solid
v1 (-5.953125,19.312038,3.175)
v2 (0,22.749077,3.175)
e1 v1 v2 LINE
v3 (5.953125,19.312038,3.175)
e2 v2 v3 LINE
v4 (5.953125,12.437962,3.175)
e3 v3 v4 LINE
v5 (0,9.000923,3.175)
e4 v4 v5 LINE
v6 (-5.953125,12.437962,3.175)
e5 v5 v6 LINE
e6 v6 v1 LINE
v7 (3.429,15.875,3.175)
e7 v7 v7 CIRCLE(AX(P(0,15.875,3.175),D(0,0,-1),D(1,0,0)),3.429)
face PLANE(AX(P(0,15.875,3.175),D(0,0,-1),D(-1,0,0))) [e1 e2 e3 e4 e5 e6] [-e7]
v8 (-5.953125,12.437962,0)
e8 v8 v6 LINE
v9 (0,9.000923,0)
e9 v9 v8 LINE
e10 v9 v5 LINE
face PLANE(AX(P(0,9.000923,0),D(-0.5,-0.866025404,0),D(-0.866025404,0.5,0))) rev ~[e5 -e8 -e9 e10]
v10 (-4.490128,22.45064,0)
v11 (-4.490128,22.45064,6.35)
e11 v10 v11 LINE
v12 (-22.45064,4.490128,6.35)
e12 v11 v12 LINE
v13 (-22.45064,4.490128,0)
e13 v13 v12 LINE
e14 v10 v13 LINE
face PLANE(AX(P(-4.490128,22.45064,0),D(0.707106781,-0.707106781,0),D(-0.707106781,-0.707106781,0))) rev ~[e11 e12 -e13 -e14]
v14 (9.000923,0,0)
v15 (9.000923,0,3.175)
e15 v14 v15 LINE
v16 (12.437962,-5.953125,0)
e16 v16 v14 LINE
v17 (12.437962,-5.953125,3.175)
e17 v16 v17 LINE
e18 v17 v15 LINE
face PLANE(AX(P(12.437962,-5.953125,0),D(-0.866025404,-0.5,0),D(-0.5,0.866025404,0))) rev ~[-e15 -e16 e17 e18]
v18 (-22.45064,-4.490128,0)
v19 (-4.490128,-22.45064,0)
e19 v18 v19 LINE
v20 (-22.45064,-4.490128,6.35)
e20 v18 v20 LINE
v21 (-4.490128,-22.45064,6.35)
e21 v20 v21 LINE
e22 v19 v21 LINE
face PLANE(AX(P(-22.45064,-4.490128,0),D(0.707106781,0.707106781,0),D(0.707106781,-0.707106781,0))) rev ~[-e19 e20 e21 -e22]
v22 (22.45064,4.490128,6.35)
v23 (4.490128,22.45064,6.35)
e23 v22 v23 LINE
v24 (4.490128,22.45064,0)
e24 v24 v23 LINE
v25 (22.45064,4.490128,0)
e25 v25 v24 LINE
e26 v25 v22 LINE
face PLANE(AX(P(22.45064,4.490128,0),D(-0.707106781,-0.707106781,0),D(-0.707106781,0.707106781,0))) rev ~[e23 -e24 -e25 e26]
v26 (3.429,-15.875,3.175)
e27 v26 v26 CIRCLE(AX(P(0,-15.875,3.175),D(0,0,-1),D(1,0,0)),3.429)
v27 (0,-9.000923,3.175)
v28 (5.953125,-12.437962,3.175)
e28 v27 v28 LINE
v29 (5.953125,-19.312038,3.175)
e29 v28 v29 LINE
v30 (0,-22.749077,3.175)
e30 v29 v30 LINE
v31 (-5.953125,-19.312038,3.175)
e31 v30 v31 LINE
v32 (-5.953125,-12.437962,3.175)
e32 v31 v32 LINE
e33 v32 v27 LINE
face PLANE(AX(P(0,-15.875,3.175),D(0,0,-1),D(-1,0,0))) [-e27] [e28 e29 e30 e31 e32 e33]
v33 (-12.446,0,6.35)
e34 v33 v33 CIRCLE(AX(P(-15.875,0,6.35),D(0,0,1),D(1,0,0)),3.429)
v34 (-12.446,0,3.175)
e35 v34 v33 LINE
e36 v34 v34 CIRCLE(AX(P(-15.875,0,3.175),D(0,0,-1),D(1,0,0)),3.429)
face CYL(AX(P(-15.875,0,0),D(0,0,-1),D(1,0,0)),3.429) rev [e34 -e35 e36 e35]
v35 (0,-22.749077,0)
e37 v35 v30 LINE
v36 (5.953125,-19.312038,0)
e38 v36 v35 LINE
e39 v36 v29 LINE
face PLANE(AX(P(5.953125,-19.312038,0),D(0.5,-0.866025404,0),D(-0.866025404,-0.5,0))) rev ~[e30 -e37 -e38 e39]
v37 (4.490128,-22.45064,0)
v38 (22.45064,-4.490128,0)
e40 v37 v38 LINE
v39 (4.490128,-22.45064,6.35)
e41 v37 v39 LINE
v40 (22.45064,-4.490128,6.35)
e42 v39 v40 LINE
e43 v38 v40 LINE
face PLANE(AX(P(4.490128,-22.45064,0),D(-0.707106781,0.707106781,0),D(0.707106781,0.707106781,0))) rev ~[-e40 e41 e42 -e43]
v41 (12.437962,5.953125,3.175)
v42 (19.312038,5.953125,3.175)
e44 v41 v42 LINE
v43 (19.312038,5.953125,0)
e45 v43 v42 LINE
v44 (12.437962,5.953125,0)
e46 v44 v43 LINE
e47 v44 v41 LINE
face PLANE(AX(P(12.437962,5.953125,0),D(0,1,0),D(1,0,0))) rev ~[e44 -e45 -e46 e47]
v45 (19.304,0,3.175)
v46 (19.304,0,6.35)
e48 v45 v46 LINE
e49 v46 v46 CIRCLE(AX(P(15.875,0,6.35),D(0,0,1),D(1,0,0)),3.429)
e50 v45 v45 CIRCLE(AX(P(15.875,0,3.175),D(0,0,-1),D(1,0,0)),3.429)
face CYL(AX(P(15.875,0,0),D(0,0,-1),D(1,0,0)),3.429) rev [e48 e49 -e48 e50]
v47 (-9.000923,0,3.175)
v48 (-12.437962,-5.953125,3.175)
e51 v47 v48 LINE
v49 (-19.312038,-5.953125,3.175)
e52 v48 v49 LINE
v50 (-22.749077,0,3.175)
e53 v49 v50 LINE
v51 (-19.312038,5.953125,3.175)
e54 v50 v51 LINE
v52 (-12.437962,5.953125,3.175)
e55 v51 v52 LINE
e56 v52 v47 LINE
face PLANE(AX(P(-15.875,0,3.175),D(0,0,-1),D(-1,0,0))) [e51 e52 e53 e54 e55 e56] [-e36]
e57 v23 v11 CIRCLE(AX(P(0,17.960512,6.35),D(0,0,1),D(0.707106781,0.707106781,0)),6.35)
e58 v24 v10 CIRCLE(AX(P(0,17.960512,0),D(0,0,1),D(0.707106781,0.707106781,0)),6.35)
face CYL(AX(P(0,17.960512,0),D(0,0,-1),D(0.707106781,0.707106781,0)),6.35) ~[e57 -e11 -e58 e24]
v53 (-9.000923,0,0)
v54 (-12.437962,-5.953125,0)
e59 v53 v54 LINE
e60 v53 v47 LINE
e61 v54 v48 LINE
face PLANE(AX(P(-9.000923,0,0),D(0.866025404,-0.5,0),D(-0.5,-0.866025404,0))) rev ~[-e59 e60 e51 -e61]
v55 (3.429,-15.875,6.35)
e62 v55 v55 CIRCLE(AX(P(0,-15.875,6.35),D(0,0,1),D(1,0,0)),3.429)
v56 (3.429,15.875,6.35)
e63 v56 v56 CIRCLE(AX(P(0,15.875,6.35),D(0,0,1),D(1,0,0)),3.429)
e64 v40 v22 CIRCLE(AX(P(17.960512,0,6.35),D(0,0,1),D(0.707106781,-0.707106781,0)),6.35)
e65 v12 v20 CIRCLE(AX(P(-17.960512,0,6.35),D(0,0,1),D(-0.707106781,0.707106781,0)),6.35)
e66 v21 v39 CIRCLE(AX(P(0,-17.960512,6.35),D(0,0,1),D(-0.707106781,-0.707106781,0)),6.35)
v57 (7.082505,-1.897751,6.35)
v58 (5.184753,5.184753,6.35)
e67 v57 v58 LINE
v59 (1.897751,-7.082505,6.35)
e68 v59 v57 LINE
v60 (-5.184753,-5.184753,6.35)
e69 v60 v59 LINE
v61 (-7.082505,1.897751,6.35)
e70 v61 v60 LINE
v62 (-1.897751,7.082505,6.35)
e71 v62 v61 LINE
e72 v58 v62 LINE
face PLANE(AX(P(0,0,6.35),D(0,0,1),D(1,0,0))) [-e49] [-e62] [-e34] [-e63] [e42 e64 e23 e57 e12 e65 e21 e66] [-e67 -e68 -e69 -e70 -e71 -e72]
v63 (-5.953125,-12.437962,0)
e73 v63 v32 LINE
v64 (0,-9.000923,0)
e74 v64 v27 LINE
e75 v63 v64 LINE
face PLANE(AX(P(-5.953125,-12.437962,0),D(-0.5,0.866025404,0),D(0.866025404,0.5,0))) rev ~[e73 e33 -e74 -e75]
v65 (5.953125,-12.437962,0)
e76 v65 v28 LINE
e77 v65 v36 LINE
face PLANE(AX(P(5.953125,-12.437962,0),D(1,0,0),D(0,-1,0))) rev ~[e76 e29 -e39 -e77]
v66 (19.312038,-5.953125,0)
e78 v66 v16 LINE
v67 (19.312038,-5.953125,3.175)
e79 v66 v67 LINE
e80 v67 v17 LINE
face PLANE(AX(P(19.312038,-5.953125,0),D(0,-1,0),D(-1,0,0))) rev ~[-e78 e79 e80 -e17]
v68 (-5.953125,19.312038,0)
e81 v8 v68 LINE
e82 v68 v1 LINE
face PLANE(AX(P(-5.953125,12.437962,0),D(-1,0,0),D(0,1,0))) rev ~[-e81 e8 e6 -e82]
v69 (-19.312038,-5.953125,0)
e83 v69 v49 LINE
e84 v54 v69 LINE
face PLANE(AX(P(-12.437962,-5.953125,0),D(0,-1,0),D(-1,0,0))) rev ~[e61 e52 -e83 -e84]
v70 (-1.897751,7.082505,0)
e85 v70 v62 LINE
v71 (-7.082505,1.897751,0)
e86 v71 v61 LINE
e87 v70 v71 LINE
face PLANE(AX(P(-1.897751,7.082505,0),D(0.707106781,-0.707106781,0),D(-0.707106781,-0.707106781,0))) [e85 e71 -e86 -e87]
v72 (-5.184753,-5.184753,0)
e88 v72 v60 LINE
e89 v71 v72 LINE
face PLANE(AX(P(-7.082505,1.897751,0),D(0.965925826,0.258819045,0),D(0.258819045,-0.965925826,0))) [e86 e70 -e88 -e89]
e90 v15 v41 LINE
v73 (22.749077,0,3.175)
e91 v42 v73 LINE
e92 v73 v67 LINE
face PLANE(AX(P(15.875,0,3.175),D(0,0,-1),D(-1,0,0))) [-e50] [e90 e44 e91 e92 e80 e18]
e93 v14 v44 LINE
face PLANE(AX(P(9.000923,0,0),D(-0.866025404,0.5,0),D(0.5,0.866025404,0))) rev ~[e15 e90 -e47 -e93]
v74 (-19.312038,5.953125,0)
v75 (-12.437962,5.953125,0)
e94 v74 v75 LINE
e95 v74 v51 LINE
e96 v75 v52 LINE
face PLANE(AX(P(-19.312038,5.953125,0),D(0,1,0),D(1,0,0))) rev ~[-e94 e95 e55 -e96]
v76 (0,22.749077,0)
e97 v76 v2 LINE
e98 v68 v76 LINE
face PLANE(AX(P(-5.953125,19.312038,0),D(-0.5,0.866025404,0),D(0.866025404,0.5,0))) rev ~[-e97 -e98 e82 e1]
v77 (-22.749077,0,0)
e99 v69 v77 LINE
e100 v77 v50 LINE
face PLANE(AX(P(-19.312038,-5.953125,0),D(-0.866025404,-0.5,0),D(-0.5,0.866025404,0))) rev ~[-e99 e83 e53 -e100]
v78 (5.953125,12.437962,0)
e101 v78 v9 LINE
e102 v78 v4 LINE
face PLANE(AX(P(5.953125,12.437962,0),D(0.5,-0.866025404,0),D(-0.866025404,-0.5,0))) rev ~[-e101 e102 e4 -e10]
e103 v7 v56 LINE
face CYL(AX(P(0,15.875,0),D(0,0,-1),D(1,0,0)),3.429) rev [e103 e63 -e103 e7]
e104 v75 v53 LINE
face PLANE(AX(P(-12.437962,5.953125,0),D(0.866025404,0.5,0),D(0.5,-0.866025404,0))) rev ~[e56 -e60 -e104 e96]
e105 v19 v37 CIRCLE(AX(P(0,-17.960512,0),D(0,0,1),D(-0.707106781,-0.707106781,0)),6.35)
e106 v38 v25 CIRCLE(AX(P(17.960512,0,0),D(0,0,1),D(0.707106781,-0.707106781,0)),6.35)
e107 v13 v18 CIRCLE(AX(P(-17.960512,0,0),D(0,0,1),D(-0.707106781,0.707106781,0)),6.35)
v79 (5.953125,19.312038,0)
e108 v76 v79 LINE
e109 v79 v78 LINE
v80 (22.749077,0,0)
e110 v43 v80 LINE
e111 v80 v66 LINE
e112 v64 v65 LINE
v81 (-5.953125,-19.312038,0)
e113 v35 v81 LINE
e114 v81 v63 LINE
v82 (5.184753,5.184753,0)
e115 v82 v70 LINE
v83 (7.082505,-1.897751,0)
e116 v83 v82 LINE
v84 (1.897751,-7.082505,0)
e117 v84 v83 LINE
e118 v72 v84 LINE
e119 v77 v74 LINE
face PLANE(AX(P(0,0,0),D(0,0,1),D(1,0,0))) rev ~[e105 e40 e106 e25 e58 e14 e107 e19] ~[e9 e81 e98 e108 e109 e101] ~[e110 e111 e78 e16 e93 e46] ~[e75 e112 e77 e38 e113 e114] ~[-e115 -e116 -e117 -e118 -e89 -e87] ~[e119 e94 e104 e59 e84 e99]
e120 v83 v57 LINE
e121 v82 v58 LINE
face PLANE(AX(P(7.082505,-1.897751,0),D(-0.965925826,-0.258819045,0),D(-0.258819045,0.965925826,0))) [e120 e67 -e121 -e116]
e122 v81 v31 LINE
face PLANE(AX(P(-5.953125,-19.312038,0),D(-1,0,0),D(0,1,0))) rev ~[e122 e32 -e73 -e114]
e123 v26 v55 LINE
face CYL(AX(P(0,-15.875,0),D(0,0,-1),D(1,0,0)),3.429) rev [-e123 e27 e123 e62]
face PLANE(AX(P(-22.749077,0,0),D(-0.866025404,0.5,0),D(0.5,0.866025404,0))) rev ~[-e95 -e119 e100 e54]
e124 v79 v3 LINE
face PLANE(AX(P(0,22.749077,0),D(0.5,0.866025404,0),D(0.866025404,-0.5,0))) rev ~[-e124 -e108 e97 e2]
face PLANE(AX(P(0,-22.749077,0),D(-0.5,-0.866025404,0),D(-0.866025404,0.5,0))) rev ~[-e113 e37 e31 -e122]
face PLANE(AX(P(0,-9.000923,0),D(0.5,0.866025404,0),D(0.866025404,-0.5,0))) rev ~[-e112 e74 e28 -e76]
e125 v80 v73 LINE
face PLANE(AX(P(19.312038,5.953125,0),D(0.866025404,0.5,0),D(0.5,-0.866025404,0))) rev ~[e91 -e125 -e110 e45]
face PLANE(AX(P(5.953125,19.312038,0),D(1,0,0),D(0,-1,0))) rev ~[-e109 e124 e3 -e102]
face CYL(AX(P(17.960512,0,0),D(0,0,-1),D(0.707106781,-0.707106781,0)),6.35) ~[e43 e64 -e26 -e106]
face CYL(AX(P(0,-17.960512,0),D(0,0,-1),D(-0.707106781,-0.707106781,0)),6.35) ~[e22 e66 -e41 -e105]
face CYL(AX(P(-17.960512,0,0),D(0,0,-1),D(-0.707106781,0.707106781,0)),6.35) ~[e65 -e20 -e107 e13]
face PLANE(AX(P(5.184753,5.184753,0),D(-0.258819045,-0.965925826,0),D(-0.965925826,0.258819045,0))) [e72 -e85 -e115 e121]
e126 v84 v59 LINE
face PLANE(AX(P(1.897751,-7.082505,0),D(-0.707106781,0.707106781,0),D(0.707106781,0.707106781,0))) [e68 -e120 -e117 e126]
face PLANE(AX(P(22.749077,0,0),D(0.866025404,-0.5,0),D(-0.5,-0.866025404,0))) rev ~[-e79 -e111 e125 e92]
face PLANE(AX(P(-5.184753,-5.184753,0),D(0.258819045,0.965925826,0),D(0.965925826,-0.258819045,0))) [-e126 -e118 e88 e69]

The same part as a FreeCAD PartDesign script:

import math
import FreeCAD as App
import Part
import Sketcher
Q = App.Units.Quantity


def add_polygon(sketch, points):
    """Adds a closed chain of lines whose ends are joined by coincident constraints."""
    first, n = sketch.GeometryCount, len(points)
    for a, b in zip(points, points[1:] + points[:1]):
        sketch.addGeometry(Part.LineSegment(App.Vector(*a, 0), App.Vector(*b, 0)), False)
    for i in range(n):
        sketch.addConstraint(Sketcher.Constraint("Coincident", first + i, 2, first + (i + 1) % n, 1))

doc = App.newDocument("Part")
body = doc.addObject("PartDesign::Body", "Body")

# Sketch on XY plane
sketch1 = body.newObject("Sketcher::SketchObject", "Sketch")
sketch1.AttachmentSupport = (doc.getObject("XY_Plane"), [""])
sketch1.MapMode = "FlatFace"
sketch1.addGeometry(Part.LineSegment(App.Vector(-4.5, 22.5, 0), App.Vector(-22.5, 4.5, 0)), False)  # 0
sketch1.addGeometry(Part.ArcOfCircle(Part.Circle(App.Vector(-18, 0, 0), App.Vector(0, 0, 1), 6.4), math.radians(135), math.radians(225)), False)  # 1
sketch1.addGeometry(Part.LineSegment(App.Vector(-22.5, -4.5, 0), App.Vector(-4.5, -22.5, 0)), False)  # 2
sketch1.addGeometry(Part.ArcOfCircle(Part.Circle(App.Vector(0, -18, 0), App.Vector(0, 0, 1), 6.4), math.radians(-135), math.radians(-45)), False)  # 3
sketch1.addGeometry(Part.LineSegment(App.Vector(4.5, -22.5, 0), App.Vector(22.5, -4.5, 0)), False)  # 4
sketch1.addGeometry(Part.ArcOfCircle(Part.Circle(App.Vector(18, 0, 0), App.Vector(0, 0, 1), 6.4), math.radians(-45), math.radians(45)), False)  # 5
sketch1.addGeometry(Part.LineSegment(App.Vector(22.5, 4.5, 0), App.Vector(4.5, 22.5, 0)), False)  # 6
sketch1.addGeometry(Part.ArcOfCircle(Part.Circle(App.Vector(0, 18, 0), App.Vector(0, 0, 1), 6.4), math.radians(45), math.radians(135)), False)  # 7
sketch1.addGeometry(Part.Circle(App.Vector(0, -15.9, 0), App.Vector(0, 0, 1), 3.4), False)  # 8
sketch1.addGeometry(Part.Circle(App.Vector(-15.9, 0, 0), App.Vector(0, 0, 1), 3.4), False)  # 9
add_polygon(sketch1, [(-1.9, 7.1), (5.2, 5.2), (7.1, -1.9), (1.9, -7.1), (-5.2, -5.2), (-7.1, 1.9)])  # lines 10-15
sketch1.addGeometry(Part.Circle(App.Vector(15.9, 0, 0), App.Vector(0, 0, 1), 3.4), False)  # 16
sketch1.addGeometry(Part.Circle(App.Vector(0, 15.9, 0), App.Vector(0, 0, 1), 3.4), False)  # 17
sketch1.addConstraint([
    Sketcher.Constraint("Tangent", 0, 2, 1, 1),
    Sketcher.Constraint("Tangent", 1, 2, 2, 1),
    Sketcher.Constraint("Tangent", 2, 2, 3, 1),
    Sketcher.Constraint("Tangent", 3, 2, 4, 1),
    Sketcher.Constraint("Tangent", 4, 2, 5, 1),
    Sketcher.Constraint("Tangent", 5, 2, 6, 1),
    Sketcher.Constraint("Tangent", 6, 2, 7, 1),
    Sketcher.Constraint("Tangent", 7, 2, 0, 1),
    Sketcher.Constraint("Equal", 1, 3),
    Sketcher.Constraint("Equal", 3, 5),
    Sketcher.Constraint("Equal", 5, 7),
    Sketcher.Constraint("Equal", 8, 9),
    Sketcher.Constraint("Equal", 9, 16),
    Sketcher.Constraint("Equal", 16, 17),
    Sketcher.Constraint("Symmetric", 1, 3, 5, 3, -1, 1),
    Sketcher.Constraint("Symmetric", 3, 3, 7, 3, -1, 1),
    Sketcher.Constraint("Symmetric", 9, 3, 16, 3, -1, 1),
    Sketcher.Constraint("Symmetric", 8, 3, 17, 3, -1, 1),
    Sketcher.Constraint("Symmetric", 10, 2, 13, 2, -1, 1),
    Sketcher.Constraint("Symmetric", 11, 2, 14, 2, -1, 1),
    Sketcher.Constraint("Symmetric", 12, 2, 15, 2, -1, 1),
    Sketcher.Constraint("Symmetric", 2, 2, 3, 2, -2),
    Sketcher.Constraint("PointOnObject", 8, 3, -2),
    Sketcher.Constraint("PointOnObject", 9, 3, -1),
    Sketcher.Constraint("Perpendicular", 0, 2),
    Sketcher.Constraint("Perpendicular", 6, 12),
    Sketcher.Constraint("Equal", 10, 11),
    Sketcher.Constraint("Equal", 11, 12),
    Sketcher.Constraint("Diameter", 8, Q("0.27 in")),
    Sketcher.Constraint("Radius", 1, Q("0.25 in")),
    Sketcher.Constraint("Distance", 0, Q("1 in")),
    Sketcher.Constraint("Angle", 10, Q("-15 deg")),
    Sketcher.Constraint("Angle", 11, Q("-75 deg")),
    Sketcher.Constraint("DistanceX", 9, 3, 16, 3, Q("1.25 in")),
    Sketcher.Constraint("DistanceY", 8, 3, -1, 1, Q("0.625 in")),
    Sketcher.Constraint("DistanceX", 12, 2, 10, 2, Q("3.287002 mm")),
])
pad1 = body.newObject("PartDesign::Pad", "Pad")
pad1.Profile = sketch1
pad1.Length = Q("0.25 in")

# Sketch on XY plane
sketch2 = body.newObject("Sketcher::SketchObject", "Sketch001")
sketch2.AttachmentSupport = (doc.getObject("XY_Plane"), [""])
sketch2.MapMode = "FlatFace"
add_polygon(sketch2, [(-6, 19), (0, 23), (6, 19), (6, 12), (0, 9), (-6, 12)])  # lines 0-5
add_polygon(sketch2, [(-12, -6), (-19, -6), (-23, 0), (-19, 6), (-12, 6), (-9, 0)])  # lines 6-11
add_polygon(sketch2, [(6, -12), (6, -19), (0, -23), (-6, -19), (-6, -12), (0, -9)])  # lines 12-17
add_polygon(sketch2, [(12, 6), (19, 6), (23, 0), (19, -6), (12, -6), (9, 0)])  # lines 18-23
sketch2.addConstraint([
    Sketcher.Constraint("Vertical", 2),
    Sketcher.Constraint("Vertical", 5),
    Sketcher.Constraint("Horizontal", 6),
    Sketcher.Constraint("Horizontal", 9),
    Sketcher.Constraint("Vertical", 12),
    Sketcher.Constraint("Vertical", 15),
    Sketcher.Constraint("Horizontal", 18),
    Sketcher.Constraint("Horizontal", 21),
    Sketcher.Constraint("Symmetric", 5, 2, 12, 2, -1, 1),
    Sketcher.Constraint("Symmetric", 0, 2, 13, 2, -1, 1),
    Sketcher.Constraint("Symmetric", 1, 2, 14, 2, -1, 1),
    Sketcher.Constraint("Symmetric", 3, 2, 16, 2, -1, 1),
    Sketcher.Constraint("Symmetric", 6, 2, 18, 2, -1, 1),
    Sketcher.Constraint("Symmetric", 7, 2, 19, 2, -1, 1),
    Sketcher.Constraint("Symmetric", 8, 2, 20, 2, -1, 1),
    Sketcher.Constraint("Symmetric", 10, 2, 22, 2, -1, 1),
    Sketcher.Constraint("Symmetric", 2, 2, 4, 2, -2),
    Sketcher.Constraint("Symmetric", 8, 2, 18, 2, -2),
    Sketcher.Constraint("PointOnObject", 0, 2, -2),
    Sketcher.Constraint("PointOnObject", 3, 2, -2),
    Sketcher.Constraint("PointOnObject", 7, 2, -1),
    Sketcher.Constraint("PointOnObject", 10, 2, -1),
    Sketcher.Constraint("Parallel", 0, 3),
    Sketcher.Constraint("Parallel", 1, 4),
    Sketcher.Constraint("Perpendicular", 3, 7),
    Sketcher.Constraint("Parallel", 7, 10),
    Sketcher.Constraint("Parallel", 8, 11),
    Sketcher.Constraint("Parallel", 13, 16),
    Sketcher.Constraint("Parallel", 14, 17),
    Sketcher.Constraint("Parallel", 19, 22),
    Sketcher.Constraint("Parallel", 20, 23),
    Sketcher.Constraint("Equal", 21, 2),
    Sketcher.Constraint("Equal", 4, 7),
    Sketcher.Constraint("Angle", 0, Q("30 deg")),
    Sketcher.Constraint("DistanceX", -1, 1, 1, 2, Q("0.234375 in")),
    Sketcher.Constraint("DistanceY", 6, 2, 0, 2, Q("28.702202 mm")),
    Sketcher.Constraint("DistanceX", 7, 2, 2, 2, Q("28.702202 mm")),
    Sketcher.Constraint("DistanceY", 8, 2, 3, 2, Q("3.047798 mm")),
])
pocket1 = body.newObject("PartDesign::Pocket", "Pocket")
pocket1.Profile = sketch2
pocket1.Length = Q("0.125 in")
pocket1.Reversed = True

doc.recompute()
